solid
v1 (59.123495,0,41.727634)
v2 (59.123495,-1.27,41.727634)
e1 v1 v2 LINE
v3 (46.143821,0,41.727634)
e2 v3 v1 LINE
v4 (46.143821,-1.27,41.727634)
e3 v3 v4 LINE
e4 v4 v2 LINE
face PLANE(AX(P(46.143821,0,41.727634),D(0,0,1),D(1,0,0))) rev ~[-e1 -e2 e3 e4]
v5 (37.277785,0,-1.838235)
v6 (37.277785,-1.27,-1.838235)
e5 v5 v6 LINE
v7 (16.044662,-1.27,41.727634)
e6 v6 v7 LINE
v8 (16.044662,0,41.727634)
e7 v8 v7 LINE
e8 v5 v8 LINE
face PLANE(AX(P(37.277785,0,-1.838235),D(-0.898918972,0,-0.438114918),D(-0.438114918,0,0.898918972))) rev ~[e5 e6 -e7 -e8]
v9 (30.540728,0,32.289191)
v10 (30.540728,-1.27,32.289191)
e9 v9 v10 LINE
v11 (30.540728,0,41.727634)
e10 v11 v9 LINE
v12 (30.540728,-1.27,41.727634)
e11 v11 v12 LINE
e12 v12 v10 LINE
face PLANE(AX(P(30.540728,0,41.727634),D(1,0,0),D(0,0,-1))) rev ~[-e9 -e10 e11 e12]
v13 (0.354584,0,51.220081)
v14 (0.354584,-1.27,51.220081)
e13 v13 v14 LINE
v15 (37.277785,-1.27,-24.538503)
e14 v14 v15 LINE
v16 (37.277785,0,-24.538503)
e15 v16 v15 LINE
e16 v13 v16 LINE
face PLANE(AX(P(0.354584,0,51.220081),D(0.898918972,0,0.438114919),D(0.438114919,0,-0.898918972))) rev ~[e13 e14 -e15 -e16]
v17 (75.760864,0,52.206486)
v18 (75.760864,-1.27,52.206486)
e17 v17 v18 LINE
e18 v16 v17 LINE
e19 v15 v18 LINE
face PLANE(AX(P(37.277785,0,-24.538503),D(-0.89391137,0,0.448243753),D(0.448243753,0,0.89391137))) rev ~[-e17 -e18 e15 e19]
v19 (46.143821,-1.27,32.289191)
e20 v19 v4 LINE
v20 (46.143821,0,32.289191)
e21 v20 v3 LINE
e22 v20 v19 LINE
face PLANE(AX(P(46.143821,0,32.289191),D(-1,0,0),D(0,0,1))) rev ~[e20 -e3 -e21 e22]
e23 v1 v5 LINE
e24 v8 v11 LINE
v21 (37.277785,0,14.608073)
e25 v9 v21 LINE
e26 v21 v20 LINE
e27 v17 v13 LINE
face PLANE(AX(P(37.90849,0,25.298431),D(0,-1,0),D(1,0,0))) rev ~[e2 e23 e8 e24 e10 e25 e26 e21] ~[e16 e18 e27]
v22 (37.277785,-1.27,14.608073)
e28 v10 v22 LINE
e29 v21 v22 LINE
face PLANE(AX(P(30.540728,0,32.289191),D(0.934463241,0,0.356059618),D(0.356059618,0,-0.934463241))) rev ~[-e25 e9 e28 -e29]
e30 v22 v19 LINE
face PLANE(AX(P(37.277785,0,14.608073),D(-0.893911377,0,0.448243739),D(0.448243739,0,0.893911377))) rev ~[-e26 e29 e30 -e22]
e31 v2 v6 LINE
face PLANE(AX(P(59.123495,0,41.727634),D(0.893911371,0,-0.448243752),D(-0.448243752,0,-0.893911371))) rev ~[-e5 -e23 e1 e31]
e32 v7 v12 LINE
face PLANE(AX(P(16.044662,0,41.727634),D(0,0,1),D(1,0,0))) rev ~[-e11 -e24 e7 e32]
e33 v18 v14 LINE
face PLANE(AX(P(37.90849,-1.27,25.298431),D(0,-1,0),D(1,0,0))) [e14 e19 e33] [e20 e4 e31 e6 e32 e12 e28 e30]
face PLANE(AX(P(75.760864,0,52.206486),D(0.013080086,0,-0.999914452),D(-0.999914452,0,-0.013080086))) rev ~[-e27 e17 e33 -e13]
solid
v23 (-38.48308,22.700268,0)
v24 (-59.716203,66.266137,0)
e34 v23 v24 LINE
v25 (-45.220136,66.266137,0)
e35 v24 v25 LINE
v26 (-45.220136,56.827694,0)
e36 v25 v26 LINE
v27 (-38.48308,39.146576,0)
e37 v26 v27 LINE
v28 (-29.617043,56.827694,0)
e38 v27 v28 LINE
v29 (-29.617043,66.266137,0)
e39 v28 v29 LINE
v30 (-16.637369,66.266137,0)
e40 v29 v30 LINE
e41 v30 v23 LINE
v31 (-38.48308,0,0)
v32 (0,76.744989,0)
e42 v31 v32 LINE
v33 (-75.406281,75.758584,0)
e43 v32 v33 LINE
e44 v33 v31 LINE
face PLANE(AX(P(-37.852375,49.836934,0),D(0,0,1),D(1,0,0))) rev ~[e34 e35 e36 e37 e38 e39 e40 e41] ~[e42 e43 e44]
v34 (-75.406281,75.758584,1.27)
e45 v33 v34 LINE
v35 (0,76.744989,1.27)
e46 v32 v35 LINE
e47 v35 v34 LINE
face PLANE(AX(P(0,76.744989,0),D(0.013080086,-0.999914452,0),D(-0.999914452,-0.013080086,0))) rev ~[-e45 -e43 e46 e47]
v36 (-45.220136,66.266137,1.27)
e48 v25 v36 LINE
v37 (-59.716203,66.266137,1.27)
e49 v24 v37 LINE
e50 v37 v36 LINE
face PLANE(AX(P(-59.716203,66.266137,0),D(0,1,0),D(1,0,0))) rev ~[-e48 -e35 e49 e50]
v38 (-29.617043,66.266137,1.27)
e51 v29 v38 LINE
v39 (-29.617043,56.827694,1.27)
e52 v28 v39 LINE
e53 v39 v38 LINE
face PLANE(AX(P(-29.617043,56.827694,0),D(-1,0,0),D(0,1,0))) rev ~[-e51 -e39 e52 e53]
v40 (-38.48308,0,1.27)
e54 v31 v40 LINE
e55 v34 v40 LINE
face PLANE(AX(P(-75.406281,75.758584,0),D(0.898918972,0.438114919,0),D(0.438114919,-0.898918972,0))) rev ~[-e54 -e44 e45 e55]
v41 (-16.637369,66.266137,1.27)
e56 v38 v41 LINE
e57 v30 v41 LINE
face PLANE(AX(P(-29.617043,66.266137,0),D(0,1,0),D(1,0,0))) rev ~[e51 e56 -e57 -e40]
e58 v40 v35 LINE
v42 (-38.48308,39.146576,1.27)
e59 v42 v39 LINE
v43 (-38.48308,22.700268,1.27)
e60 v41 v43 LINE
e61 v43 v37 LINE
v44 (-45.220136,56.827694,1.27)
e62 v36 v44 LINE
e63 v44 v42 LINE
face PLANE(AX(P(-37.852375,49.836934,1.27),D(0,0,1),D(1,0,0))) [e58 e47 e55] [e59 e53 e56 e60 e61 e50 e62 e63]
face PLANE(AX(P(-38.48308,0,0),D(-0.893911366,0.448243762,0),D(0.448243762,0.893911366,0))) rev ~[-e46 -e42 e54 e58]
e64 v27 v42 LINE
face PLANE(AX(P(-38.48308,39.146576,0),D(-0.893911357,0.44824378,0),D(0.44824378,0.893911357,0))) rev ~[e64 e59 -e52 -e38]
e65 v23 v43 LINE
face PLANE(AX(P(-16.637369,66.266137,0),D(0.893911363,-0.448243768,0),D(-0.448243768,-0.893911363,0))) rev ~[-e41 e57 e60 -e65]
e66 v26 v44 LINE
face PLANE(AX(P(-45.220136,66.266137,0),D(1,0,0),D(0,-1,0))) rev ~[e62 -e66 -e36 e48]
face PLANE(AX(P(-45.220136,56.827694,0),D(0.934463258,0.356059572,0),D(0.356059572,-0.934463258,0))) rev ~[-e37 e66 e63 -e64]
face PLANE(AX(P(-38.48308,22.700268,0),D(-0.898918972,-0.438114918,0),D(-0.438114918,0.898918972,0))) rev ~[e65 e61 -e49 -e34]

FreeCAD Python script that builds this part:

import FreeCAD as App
import Part
import Sketcher

V = App.Vector
Q = App.Units.Quantity

doc = App.newDocument("Part")
body = doc.addObject("PartDesign::Body", "Body")

sketch1 = body.newObject("Sketcher::SketchObject", "Sketch")
sketch1.AttachmentSupport = (doc.getObject("XY_Plane"), [""])
sketch1.MapMode = "FlatFace"
sketch1.addGeometry([
    Part.LineSegment(V(0, 77, 0), V(-75, 76, 0)),
    Part.LineSegment(V(-75, 76, 0), V(-38, 0, 0)),
    Part.LineSegment(V(-38, 0, 0), V(0, 77, 0)),
    Part.LineSegment(V(-17, 66, 0), V(-38, 23, 0)),
    Part.LineSegment(V(-38, 23, 0), V(-60, 66, 0)),
    Part.LineSegment(V(-60, 66, 0), V(-45, 66, 0)),
    Part.LineSegment(V(-45, 66, 0), V(-45, 57, 0)),
    Part.LineSegment(V(-45, 57, 0), V(-38, 39, 0)),
    Part.LineSegment(V(-38, 39, 0), V(-30, 57, 0)),
    Part.LineSegment(V(-30, 57, 0), V(-30, 66, 0)),
    Part.LineSegment(V(-30, 66, 0), V(-17, 66, 0)),
], False)
sketch1.addConstraint([
    Sketcher.Constraint("Coincident", 0, 2, 1, 1),
    Sketcher.Constraint("Coincident", 1, 2, 2, 1),
    Sketcher.Constraint("Coincident", 2, 2, 0, 1),
    Sketcher.Constraint("Coincident", 3, 2, 4, 1),
    Sketcher.Constraint("Coincident", 4, 2, 5, 1),
    Sketcher.Constraint("Coincident", 5, 2, 6, 1),
    Sketcher.Constraint("Coincident", 6, 2, 7, 1),
    Sketcher.Constraint("Coincident", 7, 2, 8, 1),
    Sketcher.Constraint("Coincident", 8, 2, 9, 1),
    Sketcher.Constraint("Coincident", 9, 2, 10, 1),
    Sketcher.Constraint("Coincident", 10, 2, 3, 1),
    Sketcher.Constraint("Horizontal", 5),
    Sketcher.Constraint("Vertical", 6),
    Sketcher.Constraint("Vertical", 9),
    Sketcher.Constraint("Horizontal", 10),
    Sketcher.Constraint("PointOnObject", 1, 2, -1),
    Sketcher.Constraint("PointOnObject", 2, 2, -2),
    Sketcher.Constraint("Parallel", 2, 3),
    Sketcher.Constraint("Parallel", 1, 4),
    Sketcher.Constraint("Parallel", 3, 8),
    Sketcher.Constraint("Horizontal", 6, 2, 8, 2),
    Sketcher.Constraint("Horizontal", 5, 2, 9, 2),
    Sketcher.Constraint("Vertical", 1, 2, 3, 2),
    Sketcher.Constraint("Vertical", 3, 2, 7, 2),
    Sketcher.Constraint("Distance", 8, Q("19.779498 mm")),
    Sketcher.Constraint("DistanceX", 0, 2, 1, 2, Q("36.923201 mm")),
    Sketcher.Constraint("Distance", 2, Q("85.853018 mm")),
    Sketcher.Constraint("Distance", 3, Q("48.736229 mm")),
    Sketcher.Constraint("Distance", 7, Q("18.921148 mm")),
    Sketcher.Constraint("DistanceX", 5, 1, 5, 2, Q("14.496067 mm")),
    Sketcher.Constraint("DistanceX", 10, 1, 10, 2, Q("12.979674 mm")),
    Sketcher.Constraint("DistanceY", 6, 2, 6, 1, Q("9.438443 mm")),
    Sketcher.Constraint("DistanceY", -1, 1, 3, 2, Q("22.700268 mm")),
])
pad1 = body.newObject("PartDesign::Pad", "Pad")
pad1.Profile = sketch1
pad1.Length = Q("0.05 in")
body2 = doc.addObject("PartDesign::Body", "Body001")

sketch2 = body2.newObject("Sketcher::SketchObject", "Sketch001")
sketch2.AttachmentSupport = (doc.getObject("XZ_Plane001"), [""])
sketch2.MapMode = "FlatFace"
sketch2.addGeometry([
    Part.LineSegment(V(76, 52, 0), V(0, 51, 0)),
    Part.LineSegment(V(0, 51, 0), V(37, -25, 0)),
    Part.LineSegment(V(37, -25, 0), V(76, 52, 0)),
    Part.LineSegment(V(59, 42, 0), V(37, -2, 0)),
    Part.LineSegment(V(37, -2, 0), V(16, 42, 0)),
    Part.LineSegment(V(16, 42, 0), V(31, 42, 0)),
    Part.LineSegment(V(31, 42, 0), V(31, 32, 0)),
    Part.LineSegment(V(31, 32, 0), V(37, 15, 0)),
    Part.LineSegment(V(37, 15, 0), V(46, 32, 0)),
    Part.LineSegment(V(46, 32, 0), V(46, 42, 0)),
    Part.LineSegment(V(46, 42, 0), V(59, 42, 0)),
], False)
sketch2.addConstraint([
    Sketcher.Constraint("Coincident", 0, 2, 1, 1),
    Sketcher.Constraint("Coincident", 1, 2, 2, 1),
    Sketcher.Constraint("Coincident", 2, 2, 0, 1),
    Sketcher.Constraint("Coincident", 3, 2, 4, 1),
    Sketcher.Constraint("Coincident", 4, 2, 5, 1),
    Sketcher.Constraint("Coincident", 5, 2, 6, 1),
    Sketcher.Constraint("Coincident", 6, 2, 7, 1),
    Sketcher.Constraint("Coincident", 7, 2, 8, 1),
    Sketcher.Constraint("Coincident", 8, 2, 9, 1),
    Sketcher.Constraint("Coincident", 9, 2, 10, 1),
    Sketcher.Constraint("Coincident", 10, 2, 3, 1),
    Sketcher.Constraint("Horizontal", 5),
    Sketcher.Constraint("Vertical", 6),
    Sketcher.Constraint("Vertical", 9),
    Sketcher.Constraint("Horizontal", 10),
    Sketcher.Constraint("Parallel", 2, 3),
    Sketcher.Constraint("Parallel", 1, 4),
    Sketcher.Constraint("Parallel", 3, 8),
    Sketcher.Constraint("Horizontal", 6, 2, 8, 2),
    Sketcher.Constraint("Horizontal", 5, 2, 9, 2),
    Sketcher.Constraint("Vertical", 1, 2, 3, 2),
    Sketcher.Constraint("Vertical", 3, 2, 7, 2),
    Sketcher.Constraint("DistanceX", 0, 2, 1, 2, Q("36.923201 mm")),
    Sketcher.Constraint("DistanceX", 4, 2, 2, 2, Q("59.716202 mm")),
    Sketcher.Constraint("Distance", 0, Q("75.412731 mm")),
    Sketcher.Constraint("Distance", 2, Q("85.853018 mm")),
    Sketcher.Constraint("Distance", 3, Q("48.736229 mm")),
    Sketcher.Constraint("Distance", 7, Q("18.921149 mm")),
    Sketcher.Constraint("DistanceX", 5, 1, 5, 2, Q("14.496066 mm")),
    Sketcher.Constraint("DistanceY", 6, 2, 6, 1, Q("9.438443 mm")),
    Sketcher.Constraint("DistanceY", -1, 1, 0, 2, Q("51.220081 mm")),
    Sketcher.Constraint("DistanceX", -1, 1, 4, 2, Q("16.044662 mm")),
    Sketcher.Constraint("DistanceY", -1, 1, 6, 2, Q("32.289191 mm")),
])
pad2 = body2.newObject("PartDesign::Pad", "Pad001")
pad2.Profile = sketch2
pad2.Length = Q("0.05 in")

doc.recompute()
